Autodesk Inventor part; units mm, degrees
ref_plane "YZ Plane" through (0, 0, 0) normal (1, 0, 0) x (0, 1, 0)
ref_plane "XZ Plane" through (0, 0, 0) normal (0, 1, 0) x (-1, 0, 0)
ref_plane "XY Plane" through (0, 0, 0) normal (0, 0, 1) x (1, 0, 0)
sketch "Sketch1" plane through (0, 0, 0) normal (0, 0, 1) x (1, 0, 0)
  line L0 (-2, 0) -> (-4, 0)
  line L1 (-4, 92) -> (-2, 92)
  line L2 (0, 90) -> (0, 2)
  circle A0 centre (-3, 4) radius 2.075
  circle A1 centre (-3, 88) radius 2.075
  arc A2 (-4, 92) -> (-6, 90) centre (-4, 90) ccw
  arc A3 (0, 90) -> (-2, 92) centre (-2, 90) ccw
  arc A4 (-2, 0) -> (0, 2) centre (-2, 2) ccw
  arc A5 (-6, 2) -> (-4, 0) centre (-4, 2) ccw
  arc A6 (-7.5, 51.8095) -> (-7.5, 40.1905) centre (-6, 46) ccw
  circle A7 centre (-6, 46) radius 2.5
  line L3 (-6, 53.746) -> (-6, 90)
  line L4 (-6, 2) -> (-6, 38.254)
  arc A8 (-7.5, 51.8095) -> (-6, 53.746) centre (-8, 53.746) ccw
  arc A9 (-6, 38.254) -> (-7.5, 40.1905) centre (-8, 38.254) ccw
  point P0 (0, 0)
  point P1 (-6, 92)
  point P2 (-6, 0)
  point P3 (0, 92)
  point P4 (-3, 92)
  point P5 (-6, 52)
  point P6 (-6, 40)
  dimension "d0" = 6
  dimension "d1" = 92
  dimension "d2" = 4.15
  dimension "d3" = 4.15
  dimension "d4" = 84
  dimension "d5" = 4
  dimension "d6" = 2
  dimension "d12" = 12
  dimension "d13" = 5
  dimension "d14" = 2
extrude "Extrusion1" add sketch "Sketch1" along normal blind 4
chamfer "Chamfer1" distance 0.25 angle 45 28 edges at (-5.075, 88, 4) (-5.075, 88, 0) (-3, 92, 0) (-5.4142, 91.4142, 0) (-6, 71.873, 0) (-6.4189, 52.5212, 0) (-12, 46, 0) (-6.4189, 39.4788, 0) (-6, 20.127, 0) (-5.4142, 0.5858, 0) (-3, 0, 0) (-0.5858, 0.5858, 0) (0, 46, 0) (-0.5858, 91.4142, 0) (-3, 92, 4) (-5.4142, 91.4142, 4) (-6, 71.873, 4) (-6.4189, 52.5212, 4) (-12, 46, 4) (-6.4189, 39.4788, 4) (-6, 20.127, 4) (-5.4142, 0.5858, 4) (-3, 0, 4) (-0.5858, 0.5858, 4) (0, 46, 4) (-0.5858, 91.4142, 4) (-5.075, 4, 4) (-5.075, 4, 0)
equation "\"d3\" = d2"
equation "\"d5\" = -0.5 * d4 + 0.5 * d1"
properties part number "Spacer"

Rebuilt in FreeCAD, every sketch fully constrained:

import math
import FreeCAD as App
import Part
import Sketcher
from FreeCAD import Vector


def edges_at(feature, points):
    """Names of the edges that pass closest to the given points."""
    edges = feature.Shape.Edges
    near = lambda p: min(range(len(edges)), key=lambda i: edges[i].distToShape(Part.Vertex(*p))[0])
    return sorted({f"Edge{near(p) + 1}" for p in points})

doc = App.newDocument("Part")
body = doc.addObject("PartDesign::Body", "Body")

# Sketch on XY plane
sketch1 = doc.addObject("Sketcher::SketchObject", "Sketch")
body.addObject(sketch1)
sketch1.AttachmentSupport = (doc.XY_Plane, [""])
sketch1.MapMode = "FlatFace"
sketch1.addGeometry([
    Part.LineSegment(Vector(-4, 0, 0), Vector(-2, 0, 0)),  # 0
    Part.ArcOfCircle(Part.Circle(Vector(-2, 2, 0), Vector(0, 0, 1), 2), math.radians(-90), math.radians(0)),  # 1
    Part.LineSegment(Vector(0, 2, 0), Vector(0, 90, 0)),  # 2
    Part.ArcOfCircle(Part.Circle(Vector(-2, 90, 0), Vector(0, 0, 1), 2), math.radians(0), math.radians(90)),  # 3
    Part.LineSegment(Vector(-2, 92, 0), Vector(-4, 92, 0)),  # 4
    Part.ArcOfCircle(Part.Circle(Vector(-4, 90, 0), Vector(0, 0, 1), 2), math.radians(90), math.radians(180)),  # 5
    Part.LineSegment(Vector(-6, 90, 0), Vector(-6, 53.746, 0)),  # 6
    Part.ArcOfCircle(Part.Circle(Vector(-8, 53.746, 0), Vector(0, 0, 1), 2.000008), math.radians(-75.522547), math.radians(0)),  # 7
    Part.ArcOfCircle(Part.Circle(Vector(-6, 46, 0), Vector(0, 0, 1), 6.000024), math.radians(104.477453), math.radians(255.522547)),  # 8
    Part.ArcOfCircle(Part.Circle(Vector(-8, 38.254, 0), Vector(0, 0, 1), 2), math.radians(0), math.radians(75.522547)),  # 9
    Part.LineSegment(Vector(-6, 38.254, 0), Vector(-6, 2, 0)),  # 10
    Part.ArcOfCircle(Part.Circle(Vector(-4, 2, 0), Vector(0, 0, 1), 2), math.radians(180), math.radians(270)),  # 11
    Part.Circle(Vector(-3, 4, 0), Vector(0, 0, 1), 2.075),  # 12
    Part.Circle(Vector(-6, 46, 0), Vector(0, 0, 1), 2.5),  # 13
    Part.Circle(Vector(-3, 88, 0), Vector(0, 0, 1), 2.075),  # 14
], False)
sketch1.addConstraint([
    Sketcher.Constraint("Tangent", 0, 2, 1, 1),
    Sketcher.Constraint("Tangent", 1, 2, 2, 1),
    Sketcher.Constraint("Tangent", 2, 2, 3, 1),
    Sketcher.Constraint("Tangent", 3, 2, 4, 1),
    Sketcher.Constraint("Tangent", 4, 2, 5, 1),
    Sketcher.Constraint("Tangent", 5, 2, 6, 1),
    Sketcher.Constraint("Tangent", 6, 2, 7, 2),
    Sketcher.Constraint("Tangent", 7, 1, 8, 1),
    Sketcher.Constraint("Tangent", 8, 2, 9, 2),
    Sketcher.Constraint("Tangent", 9, 1, 10, 1),
    Sketcher.Constraint("Tangent", 10, 2, 11, 1),
    Sketcher.Constraint("Tangent", 11, 2, 0, 1),
    Sketcher.Constraint("Horizontal", 0),
    Sketcher.Constraint("Vertical", 2),
    Sketcher.Constraint("Horizontal", 4),
    Sketcher.Constraint("Vertical", 6),
    Sketcher.Constraint("Vertical", 10),
    Sketcher.Constraint("Coincident", 13, 3, 8, 3),
    Sketcher.Constraint("Equal", 1, 3),
    Sketcher.Constraint("Equal", 3, 5),
    Sketcher.Constraint("Equal", 5, 7),
    Sketcher.Constraint("Equal", 7, 9),
    Sketcher.Constraint("Equal", 9, 11),
    Sketcher.Constraint("Equal", 12, 14),
    Sketcher.Constraint("PointOnObject", 0, 2, -1),
    Sketcher.Constraint("PointOnObject", 1, 2, -2),
    Sketcher.Constraint("Vertical", 7, 3, 9, 3),
    Sketcher.Constraint("Vertical", 12, 3, 14, 3),
    Sketcher.Constraint("Vertical", 13, 3, 5, 2),
    Sketcher.Constraint("Equal", 6, 10),
    Sketcher.Constraint("Diameter", 13, 5.0),
    Sketcher.Constraint("Radius", 1, 2.0),
    Sketcher.Constraint("Radius", 8, 6.0),
    Sketcher.Constraint("Diameter", 12, 4.15),
    Sketcher.Constraint("DistanceX", 0, 1, 0, 2, 2.0),
    Sketcher.Constraint("DistanceY", -1, 1, 12, 3, 4.0),
    Sketcher.Constraint("DistanceY", -1, 1, 3, 2, 92.0),
    Sketcher.Constraint("DistanceX", 9, 3, 12, 3, 5.0),
    Sketcher.Constraint("DistanceY", 14, 3, 3, 3, 2.0),
])
pad1 = doc.addObject("PartDesign::Pad", "Pad")
body.addObject(pad1)
pad1.Profile = sketch1
pad1.Length = 4
doc.recompute()

chamfer = doc.addObject("PartDesign::Chamfer", "Chamfer")
body.addObject(chamfer)
chamfer.Base = (pad1, edges_at(pad1, [
    (-5.075, 88, 4),
    (-5.075, 88, 0),
    (-3, 92, 0),
    (-5.414, 91.414, 0),
    (-6, 71.873, 0),
    (-6.419, 52.521, 0),
    (-12, 46, 0),
    (-6.419, 39.479, 0),
    (-6, 20.127, 0),
    (-5.414, 0.586, 0),
    (-3, 0, 0),
    (-0.586, 0.586, 0),
    (0, 46, 0),
    (-0.586, 91.414, 0),
    (-3, 92, 4),
    (-5.414, 91.414, 4),
    (-6, 71.873, 4),
    (-6.419, 52.521, 4),
    (-12, 46, 4),
    (-6.419, 39.479, 4),
    (-6, 20.127, 4),
    (-5.414, 0.586, 4),
    (-3, 0, 4),
    (-0.586, 0.586, 4),
    (0, 46, 4),
    (-0.586, 91.414, 4),
    (-5.075, 4, 4),
    (-5.075, 4, 0),
]))
chamfer.Size = 0.25

doc.recompute()
